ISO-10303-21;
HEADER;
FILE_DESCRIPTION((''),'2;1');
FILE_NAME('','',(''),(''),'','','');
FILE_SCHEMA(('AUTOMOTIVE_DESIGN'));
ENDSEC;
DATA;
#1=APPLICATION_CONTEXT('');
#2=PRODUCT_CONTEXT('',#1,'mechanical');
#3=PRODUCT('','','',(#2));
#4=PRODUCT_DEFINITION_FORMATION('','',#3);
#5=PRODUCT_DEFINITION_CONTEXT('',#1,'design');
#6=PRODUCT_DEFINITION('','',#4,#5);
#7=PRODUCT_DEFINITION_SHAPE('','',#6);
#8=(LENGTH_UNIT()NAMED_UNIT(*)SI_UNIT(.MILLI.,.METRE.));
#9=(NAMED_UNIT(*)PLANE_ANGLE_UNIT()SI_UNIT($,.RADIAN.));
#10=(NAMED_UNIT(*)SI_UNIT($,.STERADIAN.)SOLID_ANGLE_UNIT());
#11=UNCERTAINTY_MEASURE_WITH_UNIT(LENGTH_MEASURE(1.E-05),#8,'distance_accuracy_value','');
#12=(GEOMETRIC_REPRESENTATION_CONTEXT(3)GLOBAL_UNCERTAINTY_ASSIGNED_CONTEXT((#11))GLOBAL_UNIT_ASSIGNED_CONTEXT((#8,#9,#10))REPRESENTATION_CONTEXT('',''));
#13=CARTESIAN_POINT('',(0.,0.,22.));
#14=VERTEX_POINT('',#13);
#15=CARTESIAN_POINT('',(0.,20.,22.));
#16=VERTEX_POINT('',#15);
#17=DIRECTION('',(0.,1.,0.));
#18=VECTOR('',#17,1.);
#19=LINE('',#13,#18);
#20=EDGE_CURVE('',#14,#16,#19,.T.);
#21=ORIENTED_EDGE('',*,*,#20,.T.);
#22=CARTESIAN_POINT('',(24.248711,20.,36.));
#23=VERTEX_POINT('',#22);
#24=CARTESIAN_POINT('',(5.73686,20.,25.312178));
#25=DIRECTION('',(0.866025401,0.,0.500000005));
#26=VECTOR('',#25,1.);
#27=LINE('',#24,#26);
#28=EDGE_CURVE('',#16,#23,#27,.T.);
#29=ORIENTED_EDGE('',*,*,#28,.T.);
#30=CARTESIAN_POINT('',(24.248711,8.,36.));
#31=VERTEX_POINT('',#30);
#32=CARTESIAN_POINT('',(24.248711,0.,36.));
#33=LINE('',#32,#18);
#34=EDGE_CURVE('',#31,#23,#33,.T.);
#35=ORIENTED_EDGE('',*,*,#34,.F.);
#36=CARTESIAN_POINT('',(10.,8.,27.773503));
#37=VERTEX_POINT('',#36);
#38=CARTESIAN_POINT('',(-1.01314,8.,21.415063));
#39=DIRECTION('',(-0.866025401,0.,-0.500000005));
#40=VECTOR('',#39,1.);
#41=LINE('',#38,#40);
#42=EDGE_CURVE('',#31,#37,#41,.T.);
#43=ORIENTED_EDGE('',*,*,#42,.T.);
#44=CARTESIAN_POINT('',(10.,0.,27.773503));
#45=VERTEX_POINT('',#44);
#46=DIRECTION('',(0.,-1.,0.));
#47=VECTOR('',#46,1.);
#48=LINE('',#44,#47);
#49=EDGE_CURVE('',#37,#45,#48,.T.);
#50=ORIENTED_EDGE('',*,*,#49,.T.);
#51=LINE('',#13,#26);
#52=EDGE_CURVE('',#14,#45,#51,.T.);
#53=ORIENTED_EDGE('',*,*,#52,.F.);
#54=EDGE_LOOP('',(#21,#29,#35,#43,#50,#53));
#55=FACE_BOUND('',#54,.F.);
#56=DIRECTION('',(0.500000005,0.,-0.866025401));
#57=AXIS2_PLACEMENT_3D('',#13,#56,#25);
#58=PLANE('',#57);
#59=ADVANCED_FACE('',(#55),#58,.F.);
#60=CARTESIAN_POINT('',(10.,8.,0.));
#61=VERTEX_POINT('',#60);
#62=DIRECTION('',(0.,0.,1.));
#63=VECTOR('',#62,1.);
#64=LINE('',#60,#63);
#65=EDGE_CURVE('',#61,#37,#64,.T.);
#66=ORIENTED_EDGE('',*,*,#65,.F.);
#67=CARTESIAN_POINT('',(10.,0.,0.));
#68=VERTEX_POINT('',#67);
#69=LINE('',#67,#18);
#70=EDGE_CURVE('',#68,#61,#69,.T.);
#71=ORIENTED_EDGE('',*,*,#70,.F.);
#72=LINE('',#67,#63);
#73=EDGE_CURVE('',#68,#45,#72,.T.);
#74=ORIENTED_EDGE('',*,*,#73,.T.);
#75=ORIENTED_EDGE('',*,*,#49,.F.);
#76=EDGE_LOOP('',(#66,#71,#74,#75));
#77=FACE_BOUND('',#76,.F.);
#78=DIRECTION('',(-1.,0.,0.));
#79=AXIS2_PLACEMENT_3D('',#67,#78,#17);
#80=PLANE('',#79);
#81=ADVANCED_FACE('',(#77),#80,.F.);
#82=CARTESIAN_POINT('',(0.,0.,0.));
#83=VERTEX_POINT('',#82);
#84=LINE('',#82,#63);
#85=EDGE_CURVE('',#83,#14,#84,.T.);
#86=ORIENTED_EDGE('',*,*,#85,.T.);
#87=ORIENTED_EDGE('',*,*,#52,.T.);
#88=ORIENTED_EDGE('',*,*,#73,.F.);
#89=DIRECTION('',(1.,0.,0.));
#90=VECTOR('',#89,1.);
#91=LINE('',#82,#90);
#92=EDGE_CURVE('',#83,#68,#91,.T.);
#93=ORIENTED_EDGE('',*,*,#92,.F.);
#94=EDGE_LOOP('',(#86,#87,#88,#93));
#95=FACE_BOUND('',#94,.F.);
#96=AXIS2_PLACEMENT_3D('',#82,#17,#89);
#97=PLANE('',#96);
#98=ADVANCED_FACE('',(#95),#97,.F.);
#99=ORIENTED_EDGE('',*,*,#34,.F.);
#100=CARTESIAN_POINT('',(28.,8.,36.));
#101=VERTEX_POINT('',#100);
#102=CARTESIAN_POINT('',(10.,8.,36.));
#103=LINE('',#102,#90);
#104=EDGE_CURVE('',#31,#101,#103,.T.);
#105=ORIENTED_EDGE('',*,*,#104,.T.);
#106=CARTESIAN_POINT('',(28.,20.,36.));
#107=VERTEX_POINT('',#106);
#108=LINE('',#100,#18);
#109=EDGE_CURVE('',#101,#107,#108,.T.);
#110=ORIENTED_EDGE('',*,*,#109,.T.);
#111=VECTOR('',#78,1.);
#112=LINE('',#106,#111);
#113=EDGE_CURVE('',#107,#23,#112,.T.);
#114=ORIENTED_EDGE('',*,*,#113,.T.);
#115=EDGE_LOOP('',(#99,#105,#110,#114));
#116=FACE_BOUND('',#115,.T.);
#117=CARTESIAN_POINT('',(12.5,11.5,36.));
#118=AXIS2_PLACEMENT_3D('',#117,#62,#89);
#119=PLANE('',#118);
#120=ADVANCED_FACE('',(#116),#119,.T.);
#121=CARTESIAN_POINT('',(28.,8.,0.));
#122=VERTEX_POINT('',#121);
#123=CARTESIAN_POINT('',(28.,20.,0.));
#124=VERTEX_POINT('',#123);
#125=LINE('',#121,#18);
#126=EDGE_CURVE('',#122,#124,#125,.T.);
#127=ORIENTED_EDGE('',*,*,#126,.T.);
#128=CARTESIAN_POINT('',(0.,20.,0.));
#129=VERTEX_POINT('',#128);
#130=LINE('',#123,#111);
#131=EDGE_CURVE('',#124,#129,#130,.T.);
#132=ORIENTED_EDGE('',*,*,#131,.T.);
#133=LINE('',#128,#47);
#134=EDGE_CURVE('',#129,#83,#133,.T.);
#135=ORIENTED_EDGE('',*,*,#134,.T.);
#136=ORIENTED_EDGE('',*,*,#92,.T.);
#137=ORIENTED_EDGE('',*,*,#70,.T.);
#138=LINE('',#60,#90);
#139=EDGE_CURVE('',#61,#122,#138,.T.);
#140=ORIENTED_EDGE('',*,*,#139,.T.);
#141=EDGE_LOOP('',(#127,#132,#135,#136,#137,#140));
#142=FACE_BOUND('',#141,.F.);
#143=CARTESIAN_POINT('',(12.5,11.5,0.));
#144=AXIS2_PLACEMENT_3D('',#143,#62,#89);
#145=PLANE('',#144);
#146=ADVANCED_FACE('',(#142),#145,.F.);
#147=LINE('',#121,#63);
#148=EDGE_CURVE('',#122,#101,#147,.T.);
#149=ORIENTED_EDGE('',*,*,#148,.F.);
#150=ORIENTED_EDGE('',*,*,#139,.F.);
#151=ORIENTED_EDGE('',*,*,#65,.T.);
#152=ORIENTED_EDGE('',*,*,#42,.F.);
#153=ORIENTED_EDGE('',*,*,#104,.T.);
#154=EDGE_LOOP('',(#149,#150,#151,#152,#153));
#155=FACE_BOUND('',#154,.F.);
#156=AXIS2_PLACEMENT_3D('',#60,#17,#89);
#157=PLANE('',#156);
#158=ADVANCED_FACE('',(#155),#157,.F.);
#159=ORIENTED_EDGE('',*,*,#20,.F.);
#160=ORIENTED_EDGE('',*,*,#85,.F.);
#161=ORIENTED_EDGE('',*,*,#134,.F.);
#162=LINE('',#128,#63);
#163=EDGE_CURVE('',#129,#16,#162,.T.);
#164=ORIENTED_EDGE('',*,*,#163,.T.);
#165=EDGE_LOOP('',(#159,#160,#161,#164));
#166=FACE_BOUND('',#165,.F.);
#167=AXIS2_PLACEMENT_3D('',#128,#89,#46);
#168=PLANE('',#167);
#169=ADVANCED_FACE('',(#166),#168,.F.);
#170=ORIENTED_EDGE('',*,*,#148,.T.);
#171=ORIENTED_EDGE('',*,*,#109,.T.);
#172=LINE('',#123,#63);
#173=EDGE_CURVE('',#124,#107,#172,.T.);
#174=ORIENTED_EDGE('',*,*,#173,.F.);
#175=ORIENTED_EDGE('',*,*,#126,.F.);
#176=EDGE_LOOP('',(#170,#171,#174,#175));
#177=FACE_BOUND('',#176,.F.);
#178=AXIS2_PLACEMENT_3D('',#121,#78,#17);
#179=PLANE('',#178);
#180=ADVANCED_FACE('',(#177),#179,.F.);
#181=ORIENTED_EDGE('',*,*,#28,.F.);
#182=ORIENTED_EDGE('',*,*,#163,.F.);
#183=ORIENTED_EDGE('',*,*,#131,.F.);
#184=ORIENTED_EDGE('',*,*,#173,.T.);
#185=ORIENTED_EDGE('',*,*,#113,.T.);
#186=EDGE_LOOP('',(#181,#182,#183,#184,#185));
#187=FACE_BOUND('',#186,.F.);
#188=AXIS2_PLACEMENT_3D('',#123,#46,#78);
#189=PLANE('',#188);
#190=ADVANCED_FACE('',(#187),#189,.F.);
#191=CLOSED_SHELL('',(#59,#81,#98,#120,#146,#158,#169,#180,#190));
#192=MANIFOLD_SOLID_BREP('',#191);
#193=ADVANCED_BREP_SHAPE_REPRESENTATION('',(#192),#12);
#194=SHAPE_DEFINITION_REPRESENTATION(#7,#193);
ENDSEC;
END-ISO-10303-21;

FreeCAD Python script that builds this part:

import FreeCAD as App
import Part
import Sketcher
Q = App.Units.Quantity

doc = App.newDocument("Part")
body = doc.addObject("PartDesign::Body", "Body")

# Sketch on XY plane
sketch1 = body.newObject("Sketcher::SketchObject", "Sketch")
sketch1.AttachmentSupport = (doc.getObject("XY_Plane"), [""])
sketch1.MapMode = "FlatFace"
sketch1.addGeometry([
    Part.LineSegment(App.Vector(0, 20, 0), App.Vector(0, 0, 0)),  # 0
    Part.LineSegment(App.Vector(0, 0, 0), App.Vector(10, 0, 0)),  # 1
    Part.LineSegment(App.Vector(10, 0, 0), App.Vector(10, 8, 0)),  # 2
    Part.LineSegment(App.Vector(10, 8, 0), App.Vector(28, 8, 0)),  # 3
    Part.LineSegment(App.Vector(28, 8, 0), App.Vector(28, 20, 0)),  # 4
    Part.LineSegment(App.Vector(28, 20, 0), App.Vector(0, 20, 0)),  # 5
], False)
sketch1.addConstraint([
    Sketcher.Constraint("Coincident", 0, 2, 1, 1),
    Sketcher.Constraint("Coincident", 1, 2, 2, 1),
    Sketcher.Constraint("Coincident", 2, 2, 3, 1),
    Sketcher.Constraint("Coincident", 3, 2, 4, 1),
    Sketcher.Constraint("Coincident", 4, 2, 5, 1),
    Sketcher.Constraint("Coincident", 5, 2, 0, 1),
    Sketcher.Constraint("Vertical", 0),
    Sketcher.Constraint("Horizontal", 1),
    Sketcher.Constraint("Vertical", 2),
    Sketcher.Constraint("Horizontal", 3),
    Sketcher.Constraint("Vertical", 4),
    Sketcher.Constraint("Horizontal", 5),
    Sketcher.Constraint("Coincident", 0, 2, -1, 1),
    Sketcher.Constraint("DistanceX", 1, 1, 1, 2, 10.0),
    Sketcher.Constraint("DistanceX", 3, 1, 3, 2, 18.0),
    Sketcher.Constraint("DistanceY", 0, 2, 0, 1, 20.0),
    Sketcher.Constraint("DistanceY", 2, 1, 2, 2, 8.0),
])
pad1 = body.newObject("PartDesign::Pad", "Pad")
pad1.Profile = sketch1
pad1.Length = 36

# Sketch on XZ plane
sketch2 = body.newObject("Sketcher::SketchObject", "Sketch001")
sketch2.AttachmentSupport = (doc.getObject("XZ_Plane"), [""])
sketch2.MapMode = "FlatFace"
sketch2.addGeometry([
    Part.LineSegment(App.Vector(24.248711, 36, 0), App.Vector(0, 36, 0)),
    Part.LineSegment(App.Vector(0, 36, 0), App.Vector(0, 22, 0)),
    Part.LineSegment(App.Vector(0, 22, 0), App.Vector(24.248711, 36, 0)),
], False)
sketch2.addConstraint([
    Sketcher.Constraint("Coincident", 0, 2, 1, 1),
    Sketcher.Constraint("Coincident", 1, 2, 2, 1),
    Sketcher.Constraint("Coincident", 2, 2, 0, 1),
    Sketcher.Constraint("Horizontal", 0),
    Sketcher.Constraint("Vertical", 1),
    Sketcher.Constraint("PointOnObject", 0, 2, -2),
    Sketcher.Constraint("DistanceY", 1, 2, 1, 1, 14.0),
    Sketcher.Constraint("Angle", 2, Q("30 deg")),
    Sketcher.Constraint("DistanceY", -1, 1, 0, 2, 36.0),
])
pocket1 = body.newObject("PartDesign::Pocket", "Pocket")
pocket1.Profile = sketch2
pocket1.Type = "ThroughAll"

doc.recompute()
